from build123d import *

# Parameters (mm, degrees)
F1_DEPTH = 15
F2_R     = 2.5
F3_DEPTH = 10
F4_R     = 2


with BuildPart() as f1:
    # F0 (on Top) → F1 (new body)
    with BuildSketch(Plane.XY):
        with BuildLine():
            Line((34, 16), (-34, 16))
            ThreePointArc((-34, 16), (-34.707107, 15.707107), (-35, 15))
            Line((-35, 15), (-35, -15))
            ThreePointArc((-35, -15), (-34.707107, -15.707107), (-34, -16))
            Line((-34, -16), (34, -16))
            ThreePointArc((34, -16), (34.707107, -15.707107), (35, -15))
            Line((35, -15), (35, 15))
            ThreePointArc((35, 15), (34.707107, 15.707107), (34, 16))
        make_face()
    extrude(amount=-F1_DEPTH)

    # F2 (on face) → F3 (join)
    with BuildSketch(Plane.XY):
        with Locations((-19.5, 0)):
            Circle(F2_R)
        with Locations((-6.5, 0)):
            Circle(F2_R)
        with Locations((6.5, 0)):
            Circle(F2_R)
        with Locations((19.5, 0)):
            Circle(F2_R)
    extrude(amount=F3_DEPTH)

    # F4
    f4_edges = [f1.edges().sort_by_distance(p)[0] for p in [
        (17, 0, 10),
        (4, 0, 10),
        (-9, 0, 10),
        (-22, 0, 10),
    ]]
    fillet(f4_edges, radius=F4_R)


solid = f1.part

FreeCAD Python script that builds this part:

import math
import FreeCAD as App
import Part
import Sketcher

V = App.Vector
Q = App.Units.Quantity


def edges_at(feature, points):
    """Names of the edges that pass closest to the given points."""
    edges = feature.Shape.Edges
    near = lambda p: min(range(len(edges)), key=lambda i: edges[i].distToShape(Part.Vertex(*p))[0])
    return sorted({f"Edge{near(p) + 1}" for p in points})

doc = App.newDocument("Part")
body = doc.addObject("PartDesign::Body", "Body")

sketch1 = doc.addObject("Sketcher::SketchObject", "Sketch")
body.addObject(sketch1)
sketch1.AttachmentSupport = (doc.XY_Plane, [""])
sketch1.MapMode = "FlatFace"
sketch1.addGeometry([
    Part.LineSegment(V(34, 16, 0), V(-34, 16, 0)),
    Part.ArcOfCircle(Part.Circle(V(-34, 15, 0), V(0, 0, 1), 1), math.radians(90), math.radians(180)),
    Part.LineSegment(V(-35, 15, 0), V(-35, -15, 0)),
    Part.ArcOfCircle(Part.Circle(V(-34, -15, 0), V(0, 0, 1), 1), math.radians(180), math.radians(270)),
    Part.LineSegment(V(-34, -16, 0), V(34, -16, 0)),
    Part.ArcOfCircle(Part.Circle(V(34, -15, 0), V(0, 0, 1), 1), math.radians(-90), math.radians(0)),
    Part.LineSegment(V(35, -15, 0), V(35, 15, 0)),
    Part.ArcOfCircle(Part.Circle(V(34, 15, 0), V(0, 0, 1), 1), math.radians(0), math.radians(90)),
], False)
sketch1.addConstraint([
    Sketcher.Constraint("Tangent", 0, 2, 1, 1),
    Sketcher.Constraint("Tangent", 1, 2, 2, 1),
    Sketcher.Constraint("Tangent", 2, 2, 3, 1),
    Sketcher.Constraint("Tangent", 3, 2, 4, 1),
    Sketcher.Constraint("Tangent", 4, 2, 5, 1),
    Sketcher.Constraint("Tangent", 5, 2, 6, 1),
    Sketcher.Constraint("Tangent", 6, 2, 7, 1),
    Sketcher.Constraint("Tangent", 7, 2, 0, 1),
    Sketcher.Constraint("Horizontal", 0),
    Sketcher.Constraint("Vertical", 2),
    Sketcher.Constraint("Horizontal", 4),
    Sketcher.Constraint("Vertical", 6),
    Sketcher.Constraint("Equal", 1, 3),
    Sketcher.Constraint("Equal", 3, 5),
    Sketcher.Constraint("Equal", 5, 7),
    Sketcher.Constraint("Symmetric", 1, 3, 5, 3, -1, 1),
    Sketcher.Constraint("Radius", 1, Q("0.999999 mm")),
    Sketcher.Constraint("DistanceX", 0, 2, 0, 1, Q("68 mm")),
    Sketcher.Constraint("DistanceY", 2, 2, 2, 1, Q("30 mm")),
])
pad1 = doc.addObject("PartDesign::Pad", "Pad")
body.addObject(pad1)
pad1.Profile = sketch1
pad1.Length = 15
pad1.Reversed = True

sketch2 = doc.addObject("Sketcher::SketchObject", "Sketch001")
body.addObject(sketch2)
sketch2.AttachmentSupport = (doc.XY_Plane, [""])
sketch2.MapMode = "FlatFace"
sketch2.addGeometry([
    Part.Circle(V(-19.5, 0, 0), V(0, 0, 1), 2.5),
    Part.Circle(V(-6.5, 0, 0), V(0, 0, 1), 2.5),
    Part.Circle(V(6.5, 0, 0), V(0, 0, 1), 2.5),
    Part.Circle(V(19.5, 0, 0), V(0, 0, 1), 2.5),
], False)
sketch2.addConstraint([
    Sketcher.Constraint("Equal", 0, 1),
    Sketcher.Constraint("Equal", 1, 2),
    Sketcher.Constraint("Equal", 2, 3),
    Sketcher.Constraint("Symmetric", 1, 3, 2, 3, -1, 1),
    Sketcher.Constraint("Symmetric", 0, 3, 3, 3, -1, 1),
    Sketcher.Constraint("PointOnObject", 0, 3, -1),
    Sketcher.Constraint("PointOnObject", 1, 3, -1),
    Sketcher.Constraint("Diameter", 0, Q("5 mm")),
    Sketcher.Constraint("DistanceX", 0, 3, 1, 3, Q("13 mm")),
    Sketcher.Constraint("DistanceX", 1, 3, 2, 3, Q("13 mm")),
])
pad2 = doc.addObject("PartDesign::Pad", "Pad001")
body.addObject(pad2)
pad2.Profile = sketch2
pad2.Length = 10
doc.recompute()

fillet = doc.addObject("PartDesign::Fillet", "Fillet")
body.addObject(fillet)
fillet.Base = (pad2, edges_at(pad2, [
    (17, 0, 10),
    (4, 0, 10),
    (-9, 0, 10),
    (-22, 0, 10),
]))
fillet.Radius = 2

doc.recompute()
